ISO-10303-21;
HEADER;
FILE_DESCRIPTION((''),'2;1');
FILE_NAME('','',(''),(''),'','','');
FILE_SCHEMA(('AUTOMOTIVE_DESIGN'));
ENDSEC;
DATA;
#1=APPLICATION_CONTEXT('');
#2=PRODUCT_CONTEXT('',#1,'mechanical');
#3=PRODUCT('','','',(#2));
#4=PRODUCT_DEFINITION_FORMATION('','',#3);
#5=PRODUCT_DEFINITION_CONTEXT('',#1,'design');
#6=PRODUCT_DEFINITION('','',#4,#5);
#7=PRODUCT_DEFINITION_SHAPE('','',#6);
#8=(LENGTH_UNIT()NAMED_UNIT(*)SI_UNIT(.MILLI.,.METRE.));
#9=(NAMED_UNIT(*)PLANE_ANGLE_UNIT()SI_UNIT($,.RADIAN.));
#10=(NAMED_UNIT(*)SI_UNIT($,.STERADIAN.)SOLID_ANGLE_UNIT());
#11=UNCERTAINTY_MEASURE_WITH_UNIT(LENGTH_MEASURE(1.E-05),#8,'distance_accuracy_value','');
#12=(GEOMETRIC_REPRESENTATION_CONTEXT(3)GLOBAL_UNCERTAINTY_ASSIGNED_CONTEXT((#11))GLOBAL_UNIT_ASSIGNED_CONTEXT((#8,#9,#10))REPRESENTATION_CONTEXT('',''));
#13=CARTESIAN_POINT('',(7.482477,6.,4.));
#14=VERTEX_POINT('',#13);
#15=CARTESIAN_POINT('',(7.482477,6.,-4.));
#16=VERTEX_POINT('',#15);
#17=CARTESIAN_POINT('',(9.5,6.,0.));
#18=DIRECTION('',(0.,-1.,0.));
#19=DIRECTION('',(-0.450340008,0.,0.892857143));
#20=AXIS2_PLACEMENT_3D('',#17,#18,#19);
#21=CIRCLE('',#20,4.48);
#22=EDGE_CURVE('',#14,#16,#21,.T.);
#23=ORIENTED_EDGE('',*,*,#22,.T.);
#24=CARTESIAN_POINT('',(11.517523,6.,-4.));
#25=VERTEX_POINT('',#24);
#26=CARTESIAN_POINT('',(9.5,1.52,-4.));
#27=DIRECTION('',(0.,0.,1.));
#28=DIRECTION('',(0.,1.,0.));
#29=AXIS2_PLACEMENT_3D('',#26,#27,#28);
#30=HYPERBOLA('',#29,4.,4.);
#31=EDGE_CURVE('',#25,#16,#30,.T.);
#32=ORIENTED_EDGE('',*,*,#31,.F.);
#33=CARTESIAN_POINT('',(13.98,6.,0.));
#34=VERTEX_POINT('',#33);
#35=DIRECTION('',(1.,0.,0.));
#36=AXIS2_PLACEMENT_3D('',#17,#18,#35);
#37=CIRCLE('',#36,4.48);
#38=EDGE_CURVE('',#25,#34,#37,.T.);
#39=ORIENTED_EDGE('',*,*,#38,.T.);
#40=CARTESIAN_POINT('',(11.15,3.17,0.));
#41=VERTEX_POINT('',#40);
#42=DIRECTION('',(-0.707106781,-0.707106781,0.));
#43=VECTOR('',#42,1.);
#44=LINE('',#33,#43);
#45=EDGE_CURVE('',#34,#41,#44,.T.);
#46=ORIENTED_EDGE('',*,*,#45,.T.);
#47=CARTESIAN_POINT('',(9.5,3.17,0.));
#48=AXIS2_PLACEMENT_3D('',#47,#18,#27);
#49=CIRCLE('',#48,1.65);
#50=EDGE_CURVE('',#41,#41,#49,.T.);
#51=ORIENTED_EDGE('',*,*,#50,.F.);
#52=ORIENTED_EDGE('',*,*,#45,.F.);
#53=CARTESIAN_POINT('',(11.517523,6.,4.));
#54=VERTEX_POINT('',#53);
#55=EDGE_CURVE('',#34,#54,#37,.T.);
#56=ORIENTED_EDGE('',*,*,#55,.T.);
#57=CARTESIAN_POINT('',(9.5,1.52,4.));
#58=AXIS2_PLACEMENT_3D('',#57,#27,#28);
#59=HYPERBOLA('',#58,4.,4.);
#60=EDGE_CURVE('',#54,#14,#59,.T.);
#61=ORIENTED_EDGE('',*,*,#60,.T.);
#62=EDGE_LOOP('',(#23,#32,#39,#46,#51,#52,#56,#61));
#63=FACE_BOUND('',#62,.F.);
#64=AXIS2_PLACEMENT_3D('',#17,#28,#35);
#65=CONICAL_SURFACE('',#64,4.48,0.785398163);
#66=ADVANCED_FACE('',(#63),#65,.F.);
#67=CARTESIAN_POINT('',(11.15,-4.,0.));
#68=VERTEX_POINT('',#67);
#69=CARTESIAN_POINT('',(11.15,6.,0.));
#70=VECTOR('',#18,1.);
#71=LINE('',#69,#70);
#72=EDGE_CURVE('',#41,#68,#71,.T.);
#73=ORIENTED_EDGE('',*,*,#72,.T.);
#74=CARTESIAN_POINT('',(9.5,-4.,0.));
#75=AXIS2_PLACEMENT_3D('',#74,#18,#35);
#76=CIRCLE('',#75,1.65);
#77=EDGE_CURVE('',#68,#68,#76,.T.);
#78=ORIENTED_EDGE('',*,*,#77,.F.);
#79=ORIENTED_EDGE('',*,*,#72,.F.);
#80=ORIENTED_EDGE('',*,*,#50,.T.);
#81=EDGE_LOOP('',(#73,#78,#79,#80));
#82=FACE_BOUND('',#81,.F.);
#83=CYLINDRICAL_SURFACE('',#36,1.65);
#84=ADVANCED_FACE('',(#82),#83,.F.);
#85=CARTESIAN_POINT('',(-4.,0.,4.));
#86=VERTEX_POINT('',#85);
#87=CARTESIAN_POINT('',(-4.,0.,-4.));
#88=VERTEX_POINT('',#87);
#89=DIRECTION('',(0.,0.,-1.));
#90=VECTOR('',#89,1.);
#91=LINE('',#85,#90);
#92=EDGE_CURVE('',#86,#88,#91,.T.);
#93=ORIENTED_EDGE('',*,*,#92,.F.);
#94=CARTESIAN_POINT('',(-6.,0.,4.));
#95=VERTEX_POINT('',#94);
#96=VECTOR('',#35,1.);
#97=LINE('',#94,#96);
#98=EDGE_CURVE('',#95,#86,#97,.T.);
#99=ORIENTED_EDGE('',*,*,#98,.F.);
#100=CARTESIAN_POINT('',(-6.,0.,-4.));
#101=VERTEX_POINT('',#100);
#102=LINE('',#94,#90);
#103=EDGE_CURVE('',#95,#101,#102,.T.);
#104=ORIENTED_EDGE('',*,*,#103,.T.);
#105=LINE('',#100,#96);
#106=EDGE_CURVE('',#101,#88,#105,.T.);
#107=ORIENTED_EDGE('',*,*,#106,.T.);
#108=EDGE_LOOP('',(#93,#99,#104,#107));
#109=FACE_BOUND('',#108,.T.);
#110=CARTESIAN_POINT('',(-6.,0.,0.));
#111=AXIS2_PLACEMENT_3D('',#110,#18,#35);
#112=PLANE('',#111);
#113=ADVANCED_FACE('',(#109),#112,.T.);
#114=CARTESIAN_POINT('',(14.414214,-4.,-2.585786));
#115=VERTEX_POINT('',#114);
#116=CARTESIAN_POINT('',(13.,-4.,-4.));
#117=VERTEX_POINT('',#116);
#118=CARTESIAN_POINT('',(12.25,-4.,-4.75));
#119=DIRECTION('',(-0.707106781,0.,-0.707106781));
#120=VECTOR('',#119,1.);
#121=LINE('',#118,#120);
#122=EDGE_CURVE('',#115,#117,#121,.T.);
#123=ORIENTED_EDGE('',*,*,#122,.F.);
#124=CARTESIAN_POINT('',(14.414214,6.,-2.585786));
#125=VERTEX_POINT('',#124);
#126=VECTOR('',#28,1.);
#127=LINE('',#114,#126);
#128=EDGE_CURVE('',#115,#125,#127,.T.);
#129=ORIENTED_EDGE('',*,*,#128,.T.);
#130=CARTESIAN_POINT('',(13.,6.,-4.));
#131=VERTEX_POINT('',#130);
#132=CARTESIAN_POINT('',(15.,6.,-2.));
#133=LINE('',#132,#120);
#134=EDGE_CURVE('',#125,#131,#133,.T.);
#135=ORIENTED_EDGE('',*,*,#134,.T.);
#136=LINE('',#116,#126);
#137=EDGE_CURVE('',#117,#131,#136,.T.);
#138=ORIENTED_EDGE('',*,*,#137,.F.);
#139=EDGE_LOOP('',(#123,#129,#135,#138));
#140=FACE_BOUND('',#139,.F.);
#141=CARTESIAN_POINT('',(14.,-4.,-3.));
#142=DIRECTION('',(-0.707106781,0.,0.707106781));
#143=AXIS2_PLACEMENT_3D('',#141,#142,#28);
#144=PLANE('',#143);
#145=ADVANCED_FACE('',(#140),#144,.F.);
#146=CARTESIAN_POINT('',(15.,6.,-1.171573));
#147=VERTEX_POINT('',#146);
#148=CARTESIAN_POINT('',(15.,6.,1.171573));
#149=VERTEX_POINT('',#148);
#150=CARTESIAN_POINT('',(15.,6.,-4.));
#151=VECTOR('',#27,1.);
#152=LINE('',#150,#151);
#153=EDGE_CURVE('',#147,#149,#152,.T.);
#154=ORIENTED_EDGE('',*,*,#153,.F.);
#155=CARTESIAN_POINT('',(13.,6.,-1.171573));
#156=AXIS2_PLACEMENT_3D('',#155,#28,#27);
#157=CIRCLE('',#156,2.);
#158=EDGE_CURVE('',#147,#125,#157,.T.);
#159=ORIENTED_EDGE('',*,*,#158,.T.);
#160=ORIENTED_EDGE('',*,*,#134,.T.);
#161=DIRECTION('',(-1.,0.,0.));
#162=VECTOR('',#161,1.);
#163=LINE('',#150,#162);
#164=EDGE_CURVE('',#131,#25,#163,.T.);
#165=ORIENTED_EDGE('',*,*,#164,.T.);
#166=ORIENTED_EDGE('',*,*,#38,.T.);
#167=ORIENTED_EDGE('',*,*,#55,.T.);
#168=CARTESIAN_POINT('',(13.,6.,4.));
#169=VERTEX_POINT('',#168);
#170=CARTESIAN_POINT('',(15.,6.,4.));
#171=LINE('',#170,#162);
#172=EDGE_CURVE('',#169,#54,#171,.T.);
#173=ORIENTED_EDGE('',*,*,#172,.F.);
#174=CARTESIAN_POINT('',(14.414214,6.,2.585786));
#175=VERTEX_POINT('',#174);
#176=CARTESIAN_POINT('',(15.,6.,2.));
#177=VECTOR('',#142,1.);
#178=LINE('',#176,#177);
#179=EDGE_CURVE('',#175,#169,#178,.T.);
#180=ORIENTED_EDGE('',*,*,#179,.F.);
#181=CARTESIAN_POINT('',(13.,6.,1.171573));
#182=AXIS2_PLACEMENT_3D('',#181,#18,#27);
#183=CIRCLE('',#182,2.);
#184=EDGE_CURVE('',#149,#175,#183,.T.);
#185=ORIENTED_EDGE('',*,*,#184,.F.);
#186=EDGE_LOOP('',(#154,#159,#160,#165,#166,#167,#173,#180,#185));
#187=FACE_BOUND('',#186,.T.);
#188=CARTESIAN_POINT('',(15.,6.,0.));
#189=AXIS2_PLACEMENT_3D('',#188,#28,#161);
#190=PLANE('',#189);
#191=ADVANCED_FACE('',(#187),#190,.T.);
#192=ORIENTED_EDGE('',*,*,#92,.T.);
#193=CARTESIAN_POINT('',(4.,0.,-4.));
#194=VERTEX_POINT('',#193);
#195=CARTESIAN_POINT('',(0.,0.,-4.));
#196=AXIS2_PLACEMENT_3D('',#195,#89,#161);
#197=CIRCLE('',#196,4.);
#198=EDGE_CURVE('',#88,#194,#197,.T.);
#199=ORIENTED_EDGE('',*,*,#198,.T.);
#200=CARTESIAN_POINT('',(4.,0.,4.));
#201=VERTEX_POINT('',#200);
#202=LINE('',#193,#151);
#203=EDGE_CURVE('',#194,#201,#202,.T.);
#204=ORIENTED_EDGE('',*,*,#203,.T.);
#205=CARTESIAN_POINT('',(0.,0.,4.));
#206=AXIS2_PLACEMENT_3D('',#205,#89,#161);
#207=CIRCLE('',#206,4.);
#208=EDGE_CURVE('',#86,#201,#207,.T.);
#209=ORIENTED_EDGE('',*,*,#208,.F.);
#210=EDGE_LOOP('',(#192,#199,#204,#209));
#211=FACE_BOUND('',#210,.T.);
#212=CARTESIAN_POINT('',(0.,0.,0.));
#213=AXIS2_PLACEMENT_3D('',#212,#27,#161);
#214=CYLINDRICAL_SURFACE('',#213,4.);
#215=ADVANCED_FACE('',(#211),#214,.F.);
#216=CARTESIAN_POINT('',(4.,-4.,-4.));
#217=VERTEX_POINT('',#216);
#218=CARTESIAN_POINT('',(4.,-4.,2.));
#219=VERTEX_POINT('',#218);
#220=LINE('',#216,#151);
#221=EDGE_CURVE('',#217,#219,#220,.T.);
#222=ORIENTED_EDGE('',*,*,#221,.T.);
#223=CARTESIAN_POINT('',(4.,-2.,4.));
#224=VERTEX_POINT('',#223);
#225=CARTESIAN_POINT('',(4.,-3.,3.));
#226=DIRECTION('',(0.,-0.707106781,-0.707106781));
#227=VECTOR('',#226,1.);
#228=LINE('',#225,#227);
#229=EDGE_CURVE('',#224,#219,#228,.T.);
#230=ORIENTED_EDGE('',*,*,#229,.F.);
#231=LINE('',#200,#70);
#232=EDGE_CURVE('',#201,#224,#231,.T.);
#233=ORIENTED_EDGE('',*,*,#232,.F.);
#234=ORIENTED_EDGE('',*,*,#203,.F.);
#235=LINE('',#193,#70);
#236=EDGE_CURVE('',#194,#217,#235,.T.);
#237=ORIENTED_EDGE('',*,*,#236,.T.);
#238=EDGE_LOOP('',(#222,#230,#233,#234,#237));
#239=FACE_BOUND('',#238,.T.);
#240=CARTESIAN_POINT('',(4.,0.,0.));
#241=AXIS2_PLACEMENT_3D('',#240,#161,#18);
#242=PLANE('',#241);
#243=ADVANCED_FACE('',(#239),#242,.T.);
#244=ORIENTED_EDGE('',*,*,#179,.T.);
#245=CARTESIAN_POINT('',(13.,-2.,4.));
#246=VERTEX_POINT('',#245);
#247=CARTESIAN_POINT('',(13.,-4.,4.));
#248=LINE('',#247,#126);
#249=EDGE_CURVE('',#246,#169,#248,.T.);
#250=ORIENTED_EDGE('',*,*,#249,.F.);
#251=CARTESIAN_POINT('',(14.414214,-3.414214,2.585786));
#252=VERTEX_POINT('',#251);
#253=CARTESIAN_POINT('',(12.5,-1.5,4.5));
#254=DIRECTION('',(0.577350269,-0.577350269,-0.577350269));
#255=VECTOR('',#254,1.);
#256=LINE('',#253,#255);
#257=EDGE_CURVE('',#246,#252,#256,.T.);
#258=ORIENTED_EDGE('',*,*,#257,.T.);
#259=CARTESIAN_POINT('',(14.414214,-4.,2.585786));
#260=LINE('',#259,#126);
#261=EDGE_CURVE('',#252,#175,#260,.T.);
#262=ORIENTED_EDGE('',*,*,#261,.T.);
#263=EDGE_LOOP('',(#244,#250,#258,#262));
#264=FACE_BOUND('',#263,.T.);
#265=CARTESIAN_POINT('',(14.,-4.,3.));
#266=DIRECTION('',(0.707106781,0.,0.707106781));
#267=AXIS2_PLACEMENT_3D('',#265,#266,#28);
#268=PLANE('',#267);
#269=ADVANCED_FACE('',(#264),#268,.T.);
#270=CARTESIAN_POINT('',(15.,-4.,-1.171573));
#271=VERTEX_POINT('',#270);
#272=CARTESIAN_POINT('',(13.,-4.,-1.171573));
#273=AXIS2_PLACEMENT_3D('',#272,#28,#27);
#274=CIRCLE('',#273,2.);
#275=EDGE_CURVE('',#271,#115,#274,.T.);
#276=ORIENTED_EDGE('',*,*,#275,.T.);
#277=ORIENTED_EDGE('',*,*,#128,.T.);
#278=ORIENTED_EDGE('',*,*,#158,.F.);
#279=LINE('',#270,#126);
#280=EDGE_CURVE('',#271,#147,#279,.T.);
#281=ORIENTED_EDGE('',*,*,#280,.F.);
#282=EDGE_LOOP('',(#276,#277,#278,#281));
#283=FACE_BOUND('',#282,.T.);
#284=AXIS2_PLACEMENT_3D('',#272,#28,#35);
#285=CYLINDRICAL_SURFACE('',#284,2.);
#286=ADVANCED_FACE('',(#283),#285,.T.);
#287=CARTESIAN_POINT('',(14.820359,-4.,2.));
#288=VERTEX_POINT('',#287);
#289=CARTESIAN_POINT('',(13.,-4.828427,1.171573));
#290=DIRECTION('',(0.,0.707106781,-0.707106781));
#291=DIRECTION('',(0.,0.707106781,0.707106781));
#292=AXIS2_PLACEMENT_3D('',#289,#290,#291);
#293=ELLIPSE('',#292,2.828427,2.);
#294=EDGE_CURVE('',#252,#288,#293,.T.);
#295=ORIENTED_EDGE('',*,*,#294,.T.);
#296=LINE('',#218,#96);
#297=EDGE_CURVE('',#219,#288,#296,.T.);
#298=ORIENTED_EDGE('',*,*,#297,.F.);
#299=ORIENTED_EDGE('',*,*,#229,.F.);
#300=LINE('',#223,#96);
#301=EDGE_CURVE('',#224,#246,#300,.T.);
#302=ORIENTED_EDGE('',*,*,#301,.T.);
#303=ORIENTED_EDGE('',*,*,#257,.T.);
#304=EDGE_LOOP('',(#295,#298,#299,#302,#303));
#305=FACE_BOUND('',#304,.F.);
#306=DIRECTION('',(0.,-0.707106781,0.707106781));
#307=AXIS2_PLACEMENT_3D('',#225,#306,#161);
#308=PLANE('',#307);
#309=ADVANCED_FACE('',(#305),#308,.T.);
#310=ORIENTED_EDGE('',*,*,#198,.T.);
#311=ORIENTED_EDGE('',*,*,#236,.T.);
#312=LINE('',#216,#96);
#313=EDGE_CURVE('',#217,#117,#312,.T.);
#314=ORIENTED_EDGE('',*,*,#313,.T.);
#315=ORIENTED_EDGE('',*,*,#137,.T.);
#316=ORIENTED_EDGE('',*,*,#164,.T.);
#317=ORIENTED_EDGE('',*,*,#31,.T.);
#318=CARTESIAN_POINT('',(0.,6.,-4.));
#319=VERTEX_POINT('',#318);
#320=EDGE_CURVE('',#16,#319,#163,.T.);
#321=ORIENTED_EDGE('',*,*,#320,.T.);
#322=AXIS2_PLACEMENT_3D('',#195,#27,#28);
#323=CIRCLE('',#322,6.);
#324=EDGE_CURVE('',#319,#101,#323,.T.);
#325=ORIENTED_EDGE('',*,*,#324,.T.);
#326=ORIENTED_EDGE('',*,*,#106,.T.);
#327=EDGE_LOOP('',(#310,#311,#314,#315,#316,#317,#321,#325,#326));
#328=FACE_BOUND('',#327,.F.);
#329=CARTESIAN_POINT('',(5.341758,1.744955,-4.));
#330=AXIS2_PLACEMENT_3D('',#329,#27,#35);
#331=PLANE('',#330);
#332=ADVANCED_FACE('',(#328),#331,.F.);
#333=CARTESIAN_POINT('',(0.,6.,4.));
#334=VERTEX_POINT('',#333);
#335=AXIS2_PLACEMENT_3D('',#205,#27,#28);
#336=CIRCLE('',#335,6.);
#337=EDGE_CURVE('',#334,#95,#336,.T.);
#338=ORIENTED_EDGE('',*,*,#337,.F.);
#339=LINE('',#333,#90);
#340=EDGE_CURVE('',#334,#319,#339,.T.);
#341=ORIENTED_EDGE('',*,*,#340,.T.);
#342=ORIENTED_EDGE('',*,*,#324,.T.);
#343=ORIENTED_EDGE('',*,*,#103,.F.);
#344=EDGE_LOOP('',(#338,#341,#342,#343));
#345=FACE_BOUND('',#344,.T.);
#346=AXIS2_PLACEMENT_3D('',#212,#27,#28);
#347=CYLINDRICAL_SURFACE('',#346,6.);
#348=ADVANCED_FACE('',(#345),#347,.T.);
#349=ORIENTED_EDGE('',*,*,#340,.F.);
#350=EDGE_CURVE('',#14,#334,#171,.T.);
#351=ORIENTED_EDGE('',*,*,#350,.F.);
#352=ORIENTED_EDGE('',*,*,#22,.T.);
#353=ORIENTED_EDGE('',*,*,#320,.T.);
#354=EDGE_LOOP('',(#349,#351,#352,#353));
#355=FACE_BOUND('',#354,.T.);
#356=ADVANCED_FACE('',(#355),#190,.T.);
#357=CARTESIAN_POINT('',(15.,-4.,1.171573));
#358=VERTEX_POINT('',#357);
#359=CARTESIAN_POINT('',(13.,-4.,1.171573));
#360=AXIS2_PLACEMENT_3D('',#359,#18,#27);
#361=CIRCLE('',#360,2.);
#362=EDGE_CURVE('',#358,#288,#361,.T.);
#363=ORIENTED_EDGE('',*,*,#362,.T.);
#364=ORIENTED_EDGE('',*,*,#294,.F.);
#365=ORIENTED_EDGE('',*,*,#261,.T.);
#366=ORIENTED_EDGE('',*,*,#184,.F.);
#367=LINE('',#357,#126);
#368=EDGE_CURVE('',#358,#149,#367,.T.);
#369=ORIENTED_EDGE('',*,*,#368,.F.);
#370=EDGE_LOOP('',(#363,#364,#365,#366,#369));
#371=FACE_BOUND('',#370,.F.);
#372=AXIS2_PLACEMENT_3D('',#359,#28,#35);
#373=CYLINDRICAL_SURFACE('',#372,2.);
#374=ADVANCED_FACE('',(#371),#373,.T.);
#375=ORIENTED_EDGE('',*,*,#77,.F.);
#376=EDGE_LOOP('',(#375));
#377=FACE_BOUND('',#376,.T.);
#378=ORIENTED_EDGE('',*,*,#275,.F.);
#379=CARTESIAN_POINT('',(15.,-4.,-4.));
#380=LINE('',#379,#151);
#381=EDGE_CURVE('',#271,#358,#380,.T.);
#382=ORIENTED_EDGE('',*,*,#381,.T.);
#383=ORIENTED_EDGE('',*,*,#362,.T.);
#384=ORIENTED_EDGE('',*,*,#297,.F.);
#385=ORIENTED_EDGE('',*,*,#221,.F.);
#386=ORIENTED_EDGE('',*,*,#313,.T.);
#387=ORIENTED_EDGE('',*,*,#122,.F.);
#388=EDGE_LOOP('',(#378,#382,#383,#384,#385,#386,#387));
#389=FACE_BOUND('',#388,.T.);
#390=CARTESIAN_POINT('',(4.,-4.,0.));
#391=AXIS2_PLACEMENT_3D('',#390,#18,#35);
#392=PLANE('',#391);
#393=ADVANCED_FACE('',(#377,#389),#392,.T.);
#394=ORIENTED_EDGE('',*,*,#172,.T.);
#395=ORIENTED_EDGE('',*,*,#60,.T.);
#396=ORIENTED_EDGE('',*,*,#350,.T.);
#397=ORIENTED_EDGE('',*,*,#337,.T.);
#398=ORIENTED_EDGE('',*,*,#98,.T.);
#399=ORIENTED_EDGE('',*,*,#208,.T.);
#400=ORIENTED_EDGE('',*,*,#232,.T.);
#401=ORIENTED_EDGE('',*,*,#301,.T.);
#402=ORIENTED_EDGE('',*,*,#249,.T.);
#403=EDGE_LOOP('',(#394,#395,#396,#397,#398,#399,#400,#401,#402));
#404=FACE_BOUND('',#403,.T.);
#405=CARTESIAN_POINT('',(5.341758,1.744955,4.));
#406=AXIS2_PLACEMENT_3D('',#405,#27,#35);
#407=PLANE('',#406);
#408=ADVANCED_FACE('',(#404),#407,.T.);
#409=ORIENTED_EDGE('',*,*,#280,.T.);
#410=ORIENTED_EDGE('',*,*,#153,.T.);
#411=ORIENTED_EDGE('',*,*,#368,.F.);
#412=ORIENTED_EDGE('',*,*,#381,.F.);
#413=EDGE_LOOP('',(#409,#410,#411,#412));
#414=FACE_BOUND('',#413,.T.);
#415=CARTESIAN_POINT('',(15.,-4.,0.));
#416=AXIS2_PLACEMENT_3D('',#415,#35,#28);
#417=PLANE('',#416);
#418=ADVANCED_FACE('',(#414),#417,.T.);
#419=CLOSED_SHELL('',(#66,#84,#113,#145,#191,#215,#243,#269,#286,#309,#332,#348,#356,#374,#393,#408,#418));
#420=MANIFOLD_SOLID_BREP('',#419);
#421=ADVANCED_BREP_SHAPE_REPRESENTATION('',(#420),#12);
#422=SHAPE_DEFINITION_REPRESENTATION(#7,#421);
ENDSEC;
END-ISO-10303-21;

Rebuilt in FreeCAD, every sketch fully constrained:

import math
import FreeCAD as App
import Part
import Sketcher

V = App.Vector


def edges_at(feature, points):
    """Names of the edges that pass closest to the given points."""
    edges = feature.Shape.Edges
    near = lambda p: min(range(len(edges)), key=lambda i: edges[i].distToShape(Part.Vertex(*p))[0])
    return sorted({f"Edge{near(p) + 1}" for p in points})

doc = App.newDocument("Part")
body = doc.addObject("PartDesign::Body", "Body")

sketch1 = body.newObject("Sketcher::SketchObject", "Sketch")
sketch1.AttachmentSupport = (doc.getObject("XY_Plane"), [""])
sketch1.MapMode = "FlatFace"
sketch1.addGeometry([
    Part.ArcOfCircle(Part.Circle(V(0, 0, 0), V(0, 0, 1), 4), math.radians(0), math.radians(180)),
    Part.LineSegment(V(4, 0, 0), V(4, -4, 0)),
    Part.LineSegment(V(4, -4, 0), V(15, -4, 0)),
    Part.LineSegment(V(15, -4, 0), V(15, 6, 0)),
    Part.LineSegment(V(15, 6, 0), V(0, 6, 0)),
    Part.ArcOfCircle(Part.Circle(V(0, 0, 0), V(0, 0, 1), 6), math.radians(90), math.radians(180)),
    Part.LineSegment(V(-6, 0, 0), V(-4, 0, 0)),
], False)
sketch1.addConstraint([
    Sketcher.Constraint("Tangent", 0, 1, 1, 1),
    Sketcher.Constraint("Coincident", 1, 2, 2, 1),
    Sketcher.Constraint("Coincident", 2, 2, 3, 1),
    Sketcher.Constraint("Coincident", 3, 2, 4, 1),
    Sketcher.Constraint("Tangent", 4, 2, 5, 1),
    Sketcher.Constraint("Coincident", 5, 2, 6, 1),
    Sketcher.Constraint("Coincident", 6, 2, 0, 2),
    Sketcher.Constraint("Vertical", 1),
    Sketcher.Constraint("Horizontal", 2),
    Sketcher.Constraint("Vertical", 3),
    Sketcher.Constraint("Horizontal", 4),
    Sketcher.Constraint("Horizontal", 6),
    Sketcher.Constraint("Coincident", 0, 3, -1, 1),
    Sketcher.Constraint("Coincident", 5, 3, -1, 1),
    Sketcher.Constraint("PointOnObject", 5, 2, -1),
    Sketcher.Constraint("Radius", 0, 4.0),
    Sketcher.Constraint("Radius", 5, 6.0),
    Sketcher.Constraint("DistanceX", 2, 1, 2, 2, 11.0),
    Sketcher.Constraint("DistanceY", 1, 2, 1, 1, 4.0),
])
pad1 = body.newObject("PartDesign::Pad", "Pad")
pad1.Profile = sketch1
pad1.Length = 8
pad1.Midplane = True

sketch2 = body.newObject("Sketcher::SketchObject", "Sketch001")
sketch2.AttachmentSupport = (doc.getObject("XZ_Plane"), [""])
sketch2.MapMode = "FlatFace"
sketch2.AttachmentOffset = App.Placement(V(0, 0, -6), App.Rotation())
sketch2.addGeometry(Part.Circle(V(9.5, 0, 0), V(0, 0, 1), 1.6), False)
sketch2.addConstraint([
    Sketcher.Constraint("PointOnObject", 0, 3, -1),
    Sketcher.Constraint("Diameter", 0, 3.3),
    Sketcher.Constraint("DistanceX", -1, 1, 0, 3, 9.5),
])
doc.recompute()
hole = body.newObject("PartDesign::Hole", "Hole")
hole.Profile = sketch2
hole.ThreadType = "None"
hole.Diameter = 3.3
hole.DepthType = "ThroughAll"
hole.HoleCutType = "Countersink"
hole.HoleCutDiameter = 8.96
hole.HoleCutCountersinkAngle = 90
hole.Reversed = True
doc.recompute()

chamfer = body.newObject("PartDesign::Chamfer", "Chamfer")
chamfer.Base = (hole, edges_at(hole, [(15, 1, -4), (15, 1, 4)]))
chamfer.Size = 2
doc.recompute()

fillet = body.newObject("PartDesign::Fillet", "Fillet")
fillet.Base = (chamfer, edges_at(chamfer, [(15, 1, 2), (15, 1, -2)]))
fillet.Radius = 2
doc.recompute()

chamfer2 = body.newObject("PartDesign::Chamfer", "Chamfer001")
chamfer2.Base = (fillet, edges_at(fillet, [(8.5, -4, 4)]))
chamfer2.Size = 2

doc.recompute()
